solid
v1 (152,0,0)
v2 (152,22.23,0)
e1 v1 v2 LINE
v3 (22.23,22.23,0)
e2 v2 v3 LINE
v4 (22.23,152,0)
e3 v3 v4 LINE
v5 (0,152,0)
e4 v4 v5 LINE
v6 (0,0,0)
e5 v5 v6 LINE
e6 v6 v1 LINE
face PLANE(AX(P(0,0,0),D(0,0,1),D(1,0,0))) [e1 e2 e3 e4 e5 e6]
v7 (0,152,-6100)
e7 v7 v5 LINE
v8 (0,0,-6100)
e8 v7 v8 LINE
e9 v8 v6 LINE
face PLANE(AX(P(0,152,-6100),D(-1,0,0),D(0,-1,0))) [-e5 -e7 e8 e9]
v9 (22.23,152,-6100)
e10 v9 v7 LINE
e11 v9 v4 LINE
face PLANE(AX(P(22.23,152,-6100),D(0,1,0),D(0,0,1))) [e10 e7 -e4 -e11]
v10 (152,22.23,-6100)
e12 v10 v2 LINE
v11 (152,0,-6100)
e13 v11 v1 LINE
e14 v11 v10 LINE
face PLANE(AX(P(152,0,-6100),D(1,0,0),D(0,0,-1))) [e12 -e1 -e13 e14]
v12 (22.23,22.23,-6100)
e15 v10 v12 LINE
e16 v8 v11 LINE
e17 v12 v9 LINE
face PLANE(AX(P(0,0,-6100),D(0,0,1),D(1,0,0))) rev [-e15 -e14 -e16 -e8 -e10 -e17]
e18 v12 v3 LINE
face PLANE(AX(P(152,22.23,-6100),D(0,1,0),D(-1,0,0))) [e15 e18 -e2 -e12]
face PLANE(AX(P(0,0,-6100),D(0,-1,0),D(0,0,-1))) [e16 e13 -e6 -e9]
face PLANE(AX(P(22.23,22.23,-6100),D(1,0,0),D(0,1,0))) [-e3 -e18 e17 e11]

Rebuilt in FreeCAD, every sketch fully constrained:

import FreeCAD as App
import Part
import Sketcher

V = App.Vector
Q = App.Units.Quantity


def add_polygon(sketch, points):
    """Adds a closed chain of lines whose ends are joined by coincident constraints."""
    first, n = sketch.GeometryCount, len(points)
    for a, b in zip(points, points[1:] + points[:1]):
        sketch.addGeometry(Part.LineSegment(App.Vector(*a, 0), App.Vector(*b, 0)), False)
    for i in range(n):
        sketch.addConstraint(Sketcher.Constraint("Coincident", first + i, 2, first + (i + 1) % n, 1))

doc = App.newDocument("Part")
body = doc.addObject("PartDesign::Body", "Body")

sketch1 = body.newObject("Sketcher::SketchObject", "Sketch")
sketch1.AttachmentSupport = (doc.getObject("XY_Plane"), [""])
sketch1.MapMode = "FlatFace"
add_polygon(sketch1, [(0, 152), (0, 0), (152, 0), (152, 22), (22, 22), (22, 152)])
sketch1.addConstraint([
    Sketcher.Constraint("Vertical", 0),
    Sketcher.Constraint("Horizontal", 1),
    Sketcher.Constraint("Vertical", 2),
    Sketcher.Constraint("Horizontal", 3),
    Sketcher.Constraint("Vertical", 4),
    Sketcher.Constraint("Horizontal", 5),
    Sketcher.Constraint("Coincident", 0, 2, -1, 1),
    Sketcher.Constraint("Equal", 1, 0),
    Sketcher.Constraint("Equal", 5, 2),
    Sketcher.Constraint("DistanceX", 1, 1, 1, 2, Q("152 mm")),
    Sketcher.Constraint("DistanceX", 3, 2, 3, 1, Q("129.77 mm")),
])
pad1 = body.newObject("PartDesign::Pad", "Pad")
pad1.Profile = sketch1
pad1.Length = 6100
pad1.Reversed = True

doc.recompute()
